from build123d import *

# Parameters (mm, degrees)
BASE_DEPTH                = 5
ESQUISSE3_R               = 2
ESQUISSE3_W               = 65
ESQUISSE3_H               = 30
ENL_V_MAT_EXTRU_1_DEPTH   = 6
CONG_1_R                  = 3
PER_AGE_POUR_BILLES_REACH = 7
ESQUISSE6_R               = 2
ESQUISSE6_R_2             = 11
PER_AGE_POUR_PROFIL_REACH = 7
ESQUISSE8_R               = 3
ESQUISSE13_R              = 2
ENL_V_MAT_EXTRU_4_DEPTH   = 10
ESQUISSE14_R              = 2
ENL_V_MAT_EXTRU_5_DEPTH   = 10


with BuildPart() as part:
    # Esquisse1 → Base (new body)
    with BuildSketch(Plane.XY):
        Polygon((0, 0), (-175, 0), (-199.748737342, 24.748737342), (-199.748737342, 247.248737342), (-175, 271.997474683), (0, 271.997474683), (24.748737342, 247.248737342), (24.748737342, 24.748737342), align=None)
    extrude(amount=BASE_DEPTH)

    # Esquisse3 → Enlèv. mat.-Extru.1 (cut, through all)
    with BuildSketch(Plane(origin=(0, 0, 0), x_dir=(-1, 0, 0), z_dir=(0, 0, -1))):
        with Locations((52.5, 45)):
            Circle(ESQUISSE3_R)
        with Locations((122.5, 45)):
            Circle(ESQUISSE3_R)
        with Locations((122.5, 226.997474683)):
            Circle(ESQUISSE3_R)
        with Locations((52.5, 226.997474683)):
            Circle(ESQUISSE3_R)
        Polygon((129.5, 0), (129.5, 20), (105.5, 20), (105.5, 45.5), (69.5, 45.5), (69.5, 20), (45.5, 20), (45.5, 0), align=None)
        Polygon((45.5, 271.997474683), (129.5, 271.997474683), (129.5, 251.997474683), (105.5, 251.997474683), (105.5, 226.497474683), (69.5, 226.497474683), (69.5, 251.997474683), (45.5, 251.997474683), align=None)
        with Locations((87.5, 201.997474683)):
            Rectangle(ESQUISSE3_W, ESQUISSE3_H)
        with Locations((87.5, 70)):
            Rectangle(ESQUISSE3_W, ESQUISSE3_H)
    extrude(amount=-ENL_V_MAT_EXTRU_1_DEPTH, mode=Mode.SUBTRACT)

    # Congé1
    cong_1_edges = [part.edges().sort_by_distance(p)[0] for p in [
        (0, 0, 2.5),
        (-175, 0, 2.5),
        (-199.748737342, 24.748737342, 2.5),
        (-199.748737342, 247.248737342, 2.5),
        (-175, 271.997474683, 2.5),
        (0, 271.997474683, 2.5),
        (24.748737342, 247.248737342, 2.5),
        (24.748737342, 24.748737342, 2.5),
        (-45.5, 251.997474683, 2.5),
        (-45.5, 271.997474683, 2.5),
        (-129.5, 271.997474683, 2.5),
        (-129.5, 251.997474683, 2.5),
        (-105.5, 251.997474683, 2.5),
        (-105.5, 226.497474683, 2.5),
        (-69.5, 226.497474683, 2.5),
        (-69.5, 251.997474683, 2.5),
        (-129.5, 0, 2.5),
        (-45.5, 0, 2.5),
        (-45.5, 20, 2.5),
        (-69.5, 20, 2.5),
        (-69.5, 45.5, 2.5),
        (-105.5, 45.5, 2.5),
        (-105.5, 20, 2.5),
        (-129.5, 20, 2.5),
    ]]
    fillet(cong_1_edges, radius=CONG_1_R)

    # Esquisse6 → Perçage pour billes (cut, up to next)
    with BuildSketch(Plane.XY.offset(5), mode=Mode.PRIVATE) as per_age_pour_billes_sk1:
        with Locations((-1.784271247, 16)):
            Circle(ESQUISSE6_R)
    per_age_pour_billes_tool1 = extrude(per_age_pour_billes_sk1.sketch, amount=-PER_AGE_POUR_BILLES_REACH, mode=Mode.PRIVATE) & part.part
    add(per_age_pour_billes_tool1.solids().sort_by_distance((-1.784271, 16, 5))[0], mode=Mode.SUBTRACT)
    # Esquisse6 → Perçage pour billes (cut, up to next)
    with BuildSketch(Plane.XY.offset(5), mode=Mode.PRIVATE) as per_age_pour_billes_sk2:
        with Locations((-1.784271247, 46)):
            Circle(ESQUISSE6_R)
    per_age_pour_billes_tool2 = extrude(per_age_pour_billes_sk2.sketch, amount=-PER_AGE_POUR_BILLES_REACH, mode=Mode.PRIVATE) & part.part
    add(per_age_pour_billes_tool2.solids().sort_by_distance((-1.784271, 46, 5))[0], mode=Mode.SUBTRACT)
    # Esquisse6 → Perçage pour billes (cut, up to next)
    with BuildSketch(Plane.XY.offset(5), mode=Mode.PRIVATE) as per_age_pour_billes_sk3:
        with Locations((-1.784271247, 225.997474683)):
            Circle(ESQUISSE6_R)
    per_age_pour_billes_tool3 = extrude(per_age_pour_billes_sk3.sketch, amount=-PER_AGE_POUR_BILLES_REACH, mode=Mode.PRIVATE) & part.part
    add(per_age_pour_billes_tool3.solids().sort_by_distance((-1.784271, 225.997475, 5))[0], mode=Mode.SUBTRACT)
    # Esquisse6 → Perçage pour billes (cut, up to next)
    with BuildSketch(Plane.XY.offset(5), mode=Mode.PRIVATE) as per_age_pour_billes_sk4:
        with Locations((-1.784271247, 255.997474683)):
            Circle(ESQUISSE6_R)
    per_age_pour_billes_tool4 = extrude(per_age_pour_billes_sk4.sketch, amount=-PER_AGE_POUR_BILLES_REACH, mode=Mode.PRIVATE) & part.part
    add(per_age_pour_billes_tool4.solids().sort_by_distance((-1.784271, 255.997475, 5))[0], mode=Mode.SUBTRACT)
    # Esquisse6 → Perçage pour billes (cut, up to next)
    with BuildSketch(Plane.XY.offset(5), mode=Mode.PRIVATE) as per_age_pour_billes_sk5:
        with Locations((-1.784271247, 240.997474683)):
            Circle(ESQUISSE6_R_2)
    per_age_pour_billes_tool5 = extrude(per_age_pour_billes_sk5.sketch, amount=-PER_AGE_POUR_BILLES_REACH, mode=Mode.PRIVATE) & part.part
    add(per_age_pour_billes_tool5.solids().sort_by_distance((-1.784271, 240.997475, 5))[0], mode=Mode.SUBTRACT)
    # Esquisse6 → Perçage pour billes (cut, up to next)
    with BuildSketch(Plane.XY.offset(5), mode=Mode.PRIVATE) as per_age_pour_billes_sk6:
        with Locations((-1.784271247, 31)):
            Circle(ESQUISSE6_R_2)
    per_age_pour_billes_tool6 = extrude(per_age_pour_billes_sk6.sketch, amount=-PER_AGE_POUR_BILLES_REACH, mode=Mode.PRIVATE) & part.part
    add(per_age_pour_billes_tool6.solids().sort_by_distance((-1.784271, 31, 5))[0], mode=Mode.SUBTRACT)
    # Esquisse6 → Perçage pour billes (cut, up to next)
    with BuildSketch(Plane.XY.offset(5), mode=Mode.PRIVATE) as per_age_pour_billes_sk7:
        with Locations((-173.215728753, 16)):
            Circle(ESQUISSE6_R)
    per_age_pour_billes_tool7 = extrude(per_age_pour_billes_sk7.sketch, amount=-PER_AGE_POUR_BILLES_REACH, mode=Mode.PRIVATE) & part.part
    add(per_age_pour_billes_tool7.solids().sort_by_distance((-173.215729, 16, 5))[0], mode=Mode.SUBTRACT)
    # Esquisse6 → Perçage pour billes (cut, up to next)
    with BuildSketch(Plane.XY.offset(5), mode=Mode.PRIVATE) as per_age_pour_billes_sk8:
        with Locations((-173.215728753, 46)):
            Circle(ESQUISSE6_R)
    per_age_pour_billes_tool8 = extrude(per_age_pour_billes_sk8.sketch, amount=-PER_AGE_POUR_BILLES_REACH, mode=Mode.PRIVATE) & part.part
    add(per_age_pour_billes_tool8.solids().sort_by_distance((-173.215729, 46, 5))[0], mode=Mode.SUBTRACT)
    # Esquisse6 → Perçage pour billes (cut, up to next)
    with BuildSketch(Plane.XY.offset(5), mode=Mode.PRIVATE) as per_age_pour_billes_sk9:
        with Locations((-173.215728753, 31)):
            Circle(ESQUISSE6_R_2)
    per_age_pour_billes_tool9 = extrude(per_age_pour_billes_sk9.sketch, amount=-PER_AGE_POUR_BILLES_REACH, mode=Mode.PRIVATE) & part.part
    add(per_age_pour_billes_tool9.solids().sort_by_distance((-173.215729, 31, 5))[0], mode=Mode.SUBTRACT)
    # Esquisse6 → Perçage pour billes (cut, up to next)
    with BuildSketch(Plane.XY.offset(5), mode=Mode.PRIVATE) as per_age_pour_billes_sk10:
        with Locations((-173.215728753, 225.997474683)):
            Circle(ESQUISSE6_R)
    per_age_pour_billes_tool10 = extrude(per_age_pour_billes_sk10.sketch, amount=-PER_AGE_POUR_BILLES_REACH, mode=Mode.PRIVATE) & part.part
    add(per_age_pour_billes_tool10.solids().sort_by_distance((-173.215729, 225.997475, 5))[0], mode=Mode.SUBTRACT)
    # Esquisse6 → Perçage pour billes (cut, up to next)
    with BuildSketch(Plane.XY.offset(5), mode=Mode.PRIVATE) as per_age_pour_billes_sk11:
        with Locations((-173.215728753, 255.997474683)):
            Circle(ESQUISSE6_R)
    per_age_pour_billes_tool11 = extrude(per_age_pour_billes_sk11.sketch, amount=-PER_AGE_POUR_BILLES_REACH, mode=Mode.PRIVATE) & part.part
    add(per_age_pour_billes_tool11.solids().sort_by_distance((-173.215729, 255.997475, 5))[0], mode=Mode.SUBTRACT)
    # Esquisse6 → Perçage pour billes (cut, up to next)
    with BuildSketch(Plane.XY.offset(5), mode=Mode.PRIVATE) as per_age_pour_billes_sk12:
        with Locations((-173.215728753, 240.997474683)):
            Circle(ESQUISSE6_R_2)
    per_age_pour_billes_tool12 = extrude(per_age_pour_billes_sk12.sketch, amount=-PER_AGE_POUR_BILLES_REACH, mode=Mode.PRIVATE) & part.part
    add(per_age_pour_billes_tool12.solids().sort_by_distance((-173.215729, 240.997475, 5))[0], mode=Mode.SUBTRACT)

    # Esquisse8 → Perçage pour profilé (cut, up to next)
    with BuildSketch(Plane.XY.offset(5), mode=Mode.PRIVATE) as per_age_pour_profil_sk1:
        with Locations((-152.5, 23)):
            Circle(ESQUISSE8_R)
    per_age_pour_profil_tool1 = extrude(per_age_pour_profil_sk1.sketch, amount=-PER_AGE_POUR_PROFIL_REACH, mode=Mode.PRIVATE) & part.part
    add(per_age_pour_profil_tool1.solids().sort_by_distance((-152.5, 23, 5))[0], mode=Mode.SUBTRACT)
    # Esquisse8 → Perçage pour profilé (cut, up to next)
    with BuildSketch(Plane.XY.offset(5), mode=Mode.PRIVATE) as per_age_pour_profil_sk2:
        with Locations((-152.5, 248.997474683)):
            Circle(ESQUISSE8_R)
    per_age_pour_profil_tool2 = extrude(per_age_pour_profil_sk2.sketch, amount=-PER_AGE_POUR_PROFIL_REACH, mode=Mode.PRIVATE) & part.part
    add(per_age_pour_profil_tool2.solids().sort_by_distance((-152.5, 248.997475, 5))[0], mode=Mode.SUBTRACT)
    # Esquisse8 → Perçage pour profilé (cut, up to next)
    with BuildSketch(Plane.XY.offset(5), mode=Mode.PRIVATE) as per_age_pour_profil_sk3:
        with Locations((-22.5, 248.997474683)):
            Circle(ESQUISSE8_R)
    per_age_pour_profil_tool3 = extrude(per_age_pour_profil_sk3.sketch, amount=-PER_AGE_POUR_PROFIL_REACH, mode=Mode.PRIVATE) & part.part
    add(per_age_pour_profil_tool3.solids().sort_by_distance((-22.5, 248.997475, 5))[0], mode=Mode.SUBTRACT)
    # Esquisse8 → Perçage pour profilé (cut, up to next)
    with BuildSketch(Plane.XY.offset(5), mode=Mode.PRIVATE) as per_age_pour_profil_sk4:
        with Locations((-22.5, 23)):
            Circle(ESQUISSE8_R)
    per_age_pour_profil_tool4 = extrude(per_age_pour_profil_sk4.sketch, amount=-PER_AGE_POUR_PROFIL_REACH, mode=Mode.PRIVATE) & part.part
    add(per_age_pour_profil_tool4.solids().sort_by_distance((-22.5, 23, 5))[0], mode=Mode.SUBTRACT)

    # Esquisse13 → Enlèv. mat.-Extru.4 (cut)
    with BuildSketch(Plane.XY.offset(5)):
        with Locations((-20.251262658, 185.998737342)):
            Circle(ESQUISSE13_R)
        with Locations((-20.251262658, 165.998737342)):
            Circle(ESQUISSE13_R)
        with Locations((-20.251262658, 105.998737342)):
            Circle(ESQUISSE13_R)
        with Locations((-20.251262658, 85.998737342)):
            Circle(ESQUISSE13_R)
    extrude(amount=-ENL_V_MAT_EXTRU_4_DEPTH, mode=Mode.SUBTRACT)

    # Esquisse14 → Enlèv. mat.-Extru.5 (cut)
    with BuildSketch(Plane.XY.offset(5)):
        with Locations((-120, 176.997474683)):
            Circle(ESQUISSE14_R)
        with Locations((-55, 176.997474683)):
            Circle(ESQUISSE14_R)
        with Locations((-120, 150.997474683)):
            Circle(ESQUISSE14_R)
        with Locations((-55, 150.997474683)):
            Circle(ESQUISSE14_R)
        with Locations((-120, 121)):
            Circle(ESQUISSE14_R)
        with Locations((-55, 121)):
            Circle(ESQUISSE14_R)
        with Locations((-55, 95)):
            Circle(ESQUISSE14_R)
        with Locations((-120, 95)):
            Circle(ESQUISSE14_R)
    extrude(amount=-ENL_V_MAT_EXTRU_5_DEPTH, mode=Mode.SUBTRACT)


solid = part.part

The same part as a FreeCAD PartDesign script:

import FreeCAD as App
import Part
import Sketcher
from FreeCAD import Vector


def edges_at(feature, points):
    """Names of the edges that pass closest to the given points."""
    edges = feature.Shape.Edges
    near = lambda p: min(range(len(edges)), key=lambda i: edges[i].distToShape(Part.Vertex(*p))[0])
    return sorted({f"Edge{near(p) + 1}" for p in points})

doc = App.newDocument("Part")
body = doc.addObject("PartDesign::Body", "Body")

sketch1 = doc.addObject("Sketcher::SketchObject", "Sketch")
body.addObject(sketch1)
sketch1.AttachmentSupport = (doc.XY_Plane, [""])
sketch1.MapMode = "FlatFace"
sketch1.addGeometry(Part.LineSegment(Vector(-175, 0, 0), Vector(0, 0, 0)), False)
sketch1.addGeometry(Part.LineSegment(Vector(0, 0, 0), Vector(25, 25, 0)), False)
sketch1.addGeometry(Part.LineSegment(Vector(25, 25, 0), Vector(25, 247, 0)), False)
sketch1.addGeometry(Part.LineSegment(Vector(25, 247, 0), Vector(0, 272, 0)), False)
sketch1.addGeometry(Part.LineSegment(Vector(0, 272, 0), Vector(-175, 272, 0)), False)
sketch1.addGeometry(Part.LineSegment(Vector(-175, 272, 0), Vector(-200, 247, 0)), False)
sketch1.addGeometry(Part.LineSegment(Vector(-200, 247, 0), Vector(-200, 25, 0)), False)
sketch1.addGeometry(Part.LineSegment(Vector(-200, 25, 0), Vector(-175, 0, 0)), False)
sketch1.addConstraint(Sketcher.Constraint("Coincident", 0, 2, 1, 1))
sketch1.addConstraint(Sketcher.Constraint("Coincident", 1, 2, 2, 1))
sketch1.addConstraint(Sketcher.Constraint("Coincident", 2, 2, 3, 1))
sketch1.addConstraint(Sketcher.Constraint("Coincident", 3, 2, 4, 1))
sketch1.addConstraint(Sketcher.Constraint("Coincident", 4, 2, 5, 1))
sketch1.addConstraint(Sketcher.Constraint("Coincident", 5, 2, 6, 1))
sketch1.addConstraint(Sketcher.Constraint("Coincident", 6, 2, 7, 1))
sketch1.addConstraint(Sketcher.Constraint("Coincident", 7, 2, 0, 1))
sketch1.addConstraint(Sketcher.Constraint("Horizontal", 0))
sketch1.addConstraint(Sketcher.Constraint("Vertical", 2))
sketch1.addConstraint(Sketcher.Constraint("Horizontal", 4))
sketch1.addConstraint(Sketcher.Constraint("Vertical", 6))
sketch1.addConstraint(Sketcher.Constraint("Coincident", 0, 2, -1, 1))
sketch1.addConstraint(Sketcher.Constraint("PointOnObject", 3, 2, -2))
sketch1.addConstraint(Sketcher.Constraint("Perpendicular", 1, 3))
sketch1.addConstraint(Sketcher.Constraint("Perpendicular", 3, 5))
sketch1.addConstraint(Sketcher.Constraint("Perpendicular", 5, 7))
sketch1.addConstraint(Sketcher.Constraint("Horizontal", 2, 2, 5, 2))
sketch1.addConstraint(Sketcher.Constraint("Horizontal", 1, 2, 6, 2))
sketch1.addConstraint(Sketcher.Constraint("Vertical", 4, 2, 7, 2))
sketch1.addConstraint(Sketcher.Constraint("DistanceX", 0, 1, 0, 2, 175.0))
sketch1.addConstraint(Sketcher.Constraint("Distance", 1, 35.0))
sketch1.addConstraint(Sketcher.Constraint("DistanceY", 2, 1, 2, 2, 222.5))
pad1 = doc.addObject("PartDesign::Pad", "Pad")
body.addObject(pad1)
pad1.Profile = sketch1
pad1.Length = 5

sketch2 = doc.addObject("Sketcher::SketchObject", "Sketch001")
body.addObject(sketch2)
sketch2.AttachmentSupport = (doc.XY_Plane, [""])
sketch2.MapMode = "FlatFace"
sketch2.addGeometry(Part.Circle(Vector(-52.5, 45, 0), Vector(0, 0, 1), 2), False)
sketch2.addGeometry(Part.Circle(Vector(-122.5, 45, 0), Vector(0, 0, 1), 2), False)
sketch2.addGeometry(Part.Circle(Vector(-122.5, 227, 0), Vector(0, 0, 1), 2), False)
sketch2.addGeometry(Part.Circle(Vector(-52.5, 227, 0), Vector(0, 0, 1), 2), False)
sketch2.addGeometry(Part.LineSegment(Vector(-129.5, 0, 0), Vector(-129.5, 20, 0)), False)
sketch2.addGeometry(Part.LineSegment(Vector(-129.5, 20, 0), Vector(-105.5, 20, 0)), False)
sketch2.addGeometry(Part.LineSegment(Vector(-105.5, 20, 0), Vector(-105.5, 45.5, 0)), False)
sketch2.addGeometry(Part.LineSegment(Vector(-105.5, 45.5, 0), Vector(-69.5, 45.5, 0)), False)
sketch2.addGeometry(Part.LineSegment(Vector(-69.5, 45.5, 0), Vector(-69.5, 20, 0)), False)
sketch2.addGeometry(Part.LineSegment(Vector(-69.5, 20, 0), Vector(-45.5, 20, 0)), False)
sketch2.addGeometry(Part.LineSegment(Vector(-45.5, 20, 0), Vector(-45.5, 0, 0)), False)
sketch2.addGeometry(Part.LineSegment(Vector(-45.5, 0, 0), Vector(-129.5, 0, 0)), False)
sketch2.addGeometry(Part.LineSegment(Vector(-129.5, 272, 0), Vector(-45.5, 272, 0)), False)
sketch2.addGeometry(Part.LineSegment(Vector(-45.5, 272, 0), Vector(-45.5, 252, 0)), False)
sketch2.addGeometry(Part.LineSegment(Vector(-45.5, 252, 0), Vector(-69.5, 252, 0)), False)
sketch2.addGeometry(Part.LineSegment(Vector(-69.5, 252, 0), Vector(-69.5, 226.5, 0)), False)
sketch2.addGeometry(Part.LineSegment(Vector(-69.5, 226.5, 0), Vector(-105.5, 226.5, 0)), False)
sketch2.addGeometry(Part.LineSegment(Vector(-105.5, 226.5, 0), Vector(-105.5, 252, 0)), False)
sketch2.addGeometry(Part.LineSegment(Vector(-105.5, 252, 0), Vector(-129.5, 252, 0)), False)
sketch2.addGeometry(Part.LineSegment(Vector(-129.5, 252, 0), Vector(-129.5, 272, 0)), False)
sketch2.addGeometry(Part.LineSegment(Vector(-55, 217, 0), Vector(-55, 187, 0)), False)
sketch2.addGeometry(Part.LineSegment(Vector(-55, 187, 0), Vector(-120, 187, 0)), False)
sketch2.addGeometry(Part.LineSegment(Vector(-120, 187, 0), Vector(-120, 217, 0)), False)
sketch2.addGeometry(Part.LineSegment(Vector(-120, 217, 0), Vector(-55, 217, 0)), False)
sketch2.addGeometry(Part.LineSegment(Vector(-55, 85, 0), Vector(-55, 55, 0)), False)
sketch2.addGeometry(Part.LineSegment(Vector(-55, 55, 0), Vector(-120, 55, 0)), False)
sketch2.addGeometry(Part.LineSegment(Vector(-120, 55, 0), Vector(-120, 85, 0)), False)
sketch2.addGeometry(Part.LineSegment(Vector(-120, 85, 0), Vector(-55, 85, 0)), False)
sketch2.addConstraint(Sketcher.Constraint("Coincident", 4, 2, 5, 1))
sketch2.addConstraint(Sketcher.Constraint("Coincident", 5, 2, 6, 1))
sketch2.addConstraint(Sketcher.Constraint("Coincident", 6, 2, 7, 1))
sketch2.addConstraint(Sketcher.Constraint("Coincident", 7, 2, 8, 1))
sketch2.addConstraint(Sketcher.Constraint("Coincident", 8, 2, 9, 1))
sketch2.addConstraint(Sketcher.Constraint("Coincident", 9, 2, 10, 1))
sketch2.addConstraint(Sketcher.Constraint("Coincident", 10, 2, 11, 1))
sketch2.addConstraint(Sketcher.Constraint("Coincident", 11, 2, 4, 1))
sketch2.addConstraint(Sketcher.Constraint("Coincident", 12, 2, 13, 1))
sketch2.addConstraint(Sketcher.Constraint("Coincident", 13, 2, 14, 1))
sketch2.addConstraint(Sketcher.Constraint("Coincident", 14, 2, 15, 1))
sketch2.addConstraint(Sketcher.Constraint("Coincident", 15, 2, 16, 1))
sketch2.addConstraint(Sketcher.Constraint("Coincident", 16, 2, 17, 1))
sketch2.addConstraint(Sketcher.Constraint("Coincident", 17, 2, 18, 1))
sketch2.addConstraint(Sketcher.Constraint("Coincident", 18, 2, 19, 1))
sketch2.addConstraint(Sketcher.Constraint("Coincident", 19, 2, 12, 1))
sketch2.addConstraint(Sketcher.Constraint("Coincident", 20, 2, 21, 1))
sketch2.addConstraint(Sketcher.Constraint("Coincident", 21, 2, 22, 1))
sketch2.addConstraint(Sketcher.Constraint("Coincident", 22, 2, 23, 1))
sketch2.addConstraint(Sketcher.Constraint("Coincident", 23, 2, 20, 1))
sketch2.addConstraint(Sketcher.Constraint("Coincident", 24, 2, 25, 1))
sketch2.addConstraint(Sketcher.Constraint("Coincident", 25, 2, 26, 1))
sketch2.addConstraint(Sketcher.Constraint("Coincident", 26, 2, 27, 1))
sketch2.addConstraint(Sketcher.Constraint("Coincident", 27, 2, 24, 1))
sketch2.addConstraint(Sketcher.Constraint("Vertical", 4))
sketch2.addConstraint(Sketcher.Constraint("Horizontal", 5))
sketch2.addConstraint(Sketcher.Constraint("Vertical", 6))
sketch2.addConstraint(Sketcher.Constraint("Horizontal", 7))
sketch2.addConstraint(Sketcher.Constraint("Vertical", 8))
sketch2.addConstraint(Sketcher.Constraint("Horizontal", 9))
sketch2.addConstraint(Sketcher.Constraint("Vertical", 10))
sketch2.addConstraint(Sketcher.Constraint("Horizontal", 11))
sketch2.addConstraint(Sketcher.Constraint("Horizontal", 12))
sketch2.addConstraint(Sketcher.Constraint("Vertical", 13))
sketch2.addConstraint(Sketcher.Constraint("Horizontal", 14))
sketch2.addConstraint(Sketcher.Constraint("Vertical", 15))
sketch2.addConstraint(Sketcher.Constraint("Horizontal", 16))
sketch2.addConstraint(Sketcher.Constraint("Vertical", 17))
sketch2.addConstraint(Sketcher.Constraint("Horizontal", 18))
sketch2.addConstraint(Sketcher.Constraint("Vertical", 19))
sketch2.addConstraint(Sketcher.Constraint("Vertical", 20))
sketch2.addConstraint(Sketcher.Constraint("Horizontal", 21))
sketch2.addConstraint(Sketcher.Constraint("Vertical", 22))
sketch2.addConstraint(Sketcher.Constraint("Horizontal", 23))
sketch2.addConstraint(Sketcher.Constraint("Vertical", 24))
sketch2.addConstraint(Sketcher.Constraint("Horizontal", 25))
sketch2.addConstraint(Sketcher.Constraint("Vertical", 26))
sketch2.addConstraint(Sketcher.Constraint("Horizontal", 27))
sketch2.addConstraint(Sketcher.Constraint("Equal", 0, 1))
sketch2.addConstraint(Sketcher.Constraint("Equal", 1, 2))
sketch2.addConstraint(Sketcher.Constraint("Equal", 2, 3))
sketch2.addConstraint(Sketcher.Constraint("PointOnObject", 10, 2, -1))
sketch2.addConstraint(Sketcher.Constraint("Horizontal", 0, 3, 1, 3))
sketch2.addConstraint(Sketcher.Constraint("Horizontal", 2, 3, 3, 3))
sketch2.addConstraint(Sketcher.Constraint("Horizontal", 5, 2, 8, 2))
sketch2.addConstraint(Sketcher.Constraint("Horizontal", 14, 2, 17, 2))
sketch2.addConstraint(Sketcher.Constraint("Vertical", 1, 3, 2, 3))
sketch2.addConstraint(Sketcher.Constraint("Vertical", 0, 3, 3, 3))
sketch2.addConstraint(Sketcher.Constraint("Vertical", 10, 2, 12, 2))
sketch2.addConstraint(Sketcher.Constraint("Vertical", 8, 2, 14, 2))
sketch2.addConstraint(Sketcher.Constraint("Vertical", 6, 2, 16, 2))
sketch2.addConstraint(Sketcher.Constraint("Vertical", 11, 2, 18, 2))
sketch2.addConstraint(Sketcher.Constraint("Vertical", 23, 2, 24, 2))
sketch2.addConstraint(Sketcher.Constraint("Vertical", 22, 2, 25, 2))
sketch2.addConstraint(Sketcher.Constraint("Equal", 5, 9))
sketch2.addConstraint(Sketcher.Constraint("Equal", 10, 13))
sketch2.addConstraint(Sketcher.Constraint("Equal", 8, 15))
sketch2.addConstraint(Sketcher.Constraint("Equal", 22, 24))
sketch2.addConstraint(Sketcher.Constraint("Diameter", 0, 4.0))
sketch2.addConstraint(Sketcher.Constraint("DistanceX", 5, 1, 5, 2, 24.0))
sketch2.addConstraint(Sketcher.Constraint("DistanceX", 7, 1, 7, 2, 36.0))
sketch2.addConstraint(Sketcher.Constraint("DistanceX", 21, 2, 21, 1, 65.0))
sketch2.addConstraint(Sketcher.Constraint("DistanceY", 4, 1, 4, 2, 20.0))
sketch2.addConstraint(Sketcher.Constraint("DistanceY", 20, 2, 20, 1, 30.0))
sketch2.addConstraint(Sketcher.Constraint("DistanceY", 6, 1, 6, 2, 25.5))
sketch2.addConstraint(Sketcher.Constraint("DistanceY", -1, 1, 0, 3, 45.0))
sketch2.addConstraint(Sketcher.Constraint("DistanceX", 20, 2, -1, 1, 55.0))
sketch2.addConstraint(Sketcher.Constraint("DistanceY", -1, 1, 24, 2, 55.0))
sketch2.addConstraint(Sketcher.Constraint("DistanceX", 1, 3, 0, 3, 70.0))
sketch2.addConstraint(Sketcher.Constraint("DistanceX", 4, 2, 1, 3, 7.0))
sketch2.addConstraint(Sketcher.Constraint("DistanceY", 3, 3, 12, 2, 45.0))
sketch2.addConstraint(Sketcher.Constraint("DistanceY", 20, 2, 3, 3, 40.0))
sketch2.addConstraint(Sketcher.Constraint("DistanceX", 0, 3, -1, 1, 52.5))
sketch2.addConstraint(Sketcher.Constraint("DistanceY", -1, 1, 2, 3, 226.997475))
pocket1 = doc.addObject("PartDesign::Pocket", "Pocket")
body.addObject(pocket1)
pocket1.Profile = sketch2
pocket1.Type = "ThroughAll"
pocket1.Reversed = True
doc.recompute()

fillet = doc.addObject("PartDesign::Fillet", "Fillet")
body.addObject(fillet)
fillet.Base = (pocket1, edges_at(pocket1, [
    (0, 0, 2.5),
    (-175, 0, 2.5),
    (-199.749, 24.749, 2.5),
    (-199.749, 247.249, 2.5),
    (-175, 271.997, 2.5),
    (0, 271.997, 2.5),
    (24.749, 247.249, 2.5),
    (24.749, 24.749, 2.5),
    (-45.5, 251.997, 2.5),
    (-45.5, 271.997, 2.5),
    (-129.5, 271.997, 2.5),
    (-129.5, 251.997, 2.5),
    (-105.5, 251.997, 2.5),
    (-105.5, 226.497, 2.5),
    (-69.5, 226.497, 2.5),
    (-69.5, 251.997, 2.5),
    (-129.5, 0, 2.5),
    (-45.5, 0, 2.5),
    (-45.5, 20, 2.5),
    (-69.5, 20, 2.5),
    (-69.5, 45.5, 2.5),
    (-105.5, 45.5, 2.5),
    (-105.5, 20, 2.5),
    (-129.5, 20, 2.5),
]))
fillet.Radius = 3

sketch3 = doc.addObject("Sketcher::SketchObject", "Sketch002")
body.addObject(sketch3)
sketch3.AttachmentSupport = (doc.XY_Plane, [""])
sketch3.MapMode = "FlatFace"
sketch3.AttachmentOffset = App.Placement(Vector(0, 0, 5), App.Rotation())
sketch3.addGeometry(Part.Circle(Vector(-1.8, 16, 0), Vector(0, 0, 1), 2), False)
sketch3.addConstraint(Sketcher.Constraint("Diameter", 0, 4.0))
sketch3.addConstraint(Sketcher.Constraint("DistanceY", -1, 1, 0, 3, 16.0))
sketch3.addConstraint(Sketcher.Constraint("DistanceX", 0, 3, -1, 1, 1.784271))
pocket2 = doc.addObject("PartDesign::Pocket", "Pocket001")
body.addObject(pocket2)
pocket2.Profile = sketch3
pocket2.Type = "UpToFirst"

sketch4 = doc.addObject("Sketcher::SketchObject", "Sketch003")
body.addObject(sketch4)
sketch4.AttachmentSupport = (doc.XY_Plane, [""])
sketch4.MapMode = "FlatFace"
sketch4.AttachmentOffset = App.Placement(Vector(0, 0, 5), App.Rotation())
sketch4.addGeometry(Part.Circle(Vector(-1.8, 46, 0), Vector(0, 0, 1), 2), False)
sketch4.addConstraint(Sketcher.Constraint("Diameter", 0, 4.0))
sketch4.addConstraint(Sketcher.Constraint("DistanceY", -1, 1, 0, 3, 46.0))
sketch4.addConstraint(Sketcher.Constraint("DistanceX", 0, 3, -1, 1, 1.784271))
pocket3 = doc.addObject("PartDesign::Pocket", "Pocket002")
body.addObject(pocket3)
pocket3.Profile = sketch4
pocket3.Type = "UpToFirst"

sketch5 = doc.addObject("Sketcher::SketchObject", "Sketch004")
body.addObject(sketch5)
sketch5.AttachmentSupport = (doc.XY_Plane, [""])
sketch5.MapMode = "FlatFace"
sketch5.AttachmentOffset = App.Placement(Vector(0, 0, 5), App.Rotation())
sketch5.addGeometry(Part.Circle(Vector(-1.8, 226, 0), Vector(0, 0, 1), 2), False)
sketch5.addConstraint(Sketcher.Constraint("Diameter", 0, 4.0))
sketch5.addConstraint(Sketcher.Constraint("DistanceX", 0, 3, -1, 1, 1.784271))
sketch5.addConstraint(Sketcher.Constraint("DistanceY", -1, 1, 0, 3, 225.997475))
pocket4 = doc.addObject("PartDesign::Pocket", "Pocket003")
body.addObject(pocket4)
pocket4.Profile = sketch5
pocket4.Type = "UpToFirst"

sketch6 = doc.addObject("Sketcher::SketchObject", "Sketch005")
body.addObject(sketch6)
sketch6.AttachmentSupport = (doc.XY_Plane, [""])
sketch6.MapMode = "FlatFace"
sketch6.AttachmentOffset = App.Placement(Vector(0, 0, 5), App.Rotation())
sketch6.addGeometry(Part.Circle(Vector(-1.8, 256, 0), Vector(0, 0, 1), 2), False)
sketch6.addConstraint(Sketcher.Constraint("Diameter", 0, 4.0))
sketch6.addConstraint(Sketcher.Constraint("DistanceX", 0, 3, -1, 1, 1.784271))
sketch6.addConstraint(Sketcher.Constraint("DistanceY", -1, 1, 0, 3, 255.997475))
pocket5 = doc.addObject("PartDesign::Pocket", "Pocket004")
body.addObject(pocket5)
pocket5.Profile = sketch6
pocket5.Type = "UpToFirst"

sketch7 = doc.addObject("Sketcher::SketchObject", "Sketch006")
body.addObject(sketch7)
sketch7.AttachmentSupport = (doc.XY_Plane, [""])
sketch7.MapMode = "FlatFace"
sketch7.AttachmentOffset = App.Placement(Vector(0, 0, 5), App.Rotation())
sketch7.addGeometry(Part.Circle(Vector(-2, 241, 0), Vector(0, 0, 1), 11), False)
sketch7.addConstraint(Sketcher.Constraint("Diameter", 0, 22.0))
sketch7.addConstraint(Sketcher.Constraint("DistanceX", 0, 3, -1, 1, 1.784271))
sketch7.addConstraint(Sketcher.Constraint("DistanceY", -1, 1, 0, 3, 240.997475))
pocket6 = doc.addObject("PartDesign::Pocket", "Pocket005")
body.addObject(pocket6)
pocket6.Profile = sketch7
pocket6.Type = "UpToFirst"

sketch8 = doc.addObject("Sketcher::SketchObject", "Sketch007")
body.addObject(sketch8)
sketch8.AttachmentSupport = (doc.XY_Plane, [""])
sketch8.MapMode = "FlatFace"
sketch8.AttachmentOffset = App.Placement(Vector(0, 0, 5), App.Rotation())
sketch8.addGeometry(Part.Circle(Vector(-2, 31, 0), Vector(0, 0, 1), 11), False)
sketch8.addConstraint(Sketcher.Constraint("Diameter", 0, 22.0))
sketch8.addConstraint(Sketcher.Constraint("DistanceY", -1, 1, 0, 3, 31.0))
sketch8.addConstraint(Sketcher.Constraint("DistanceX", 0, 3, -1, 1, 1.784271))
pocket7 = doc.addObject("PartDesign::Pocket", "Pocket006")
body.addObject(pocket7)
pocket7.Profile = sketch8
pocket7.Type = "UpToFirst"

sketch9 = doc.addObject("Sketcher::SketchObject", "Sketch008")
body.addObject(sketch9)
sketch9.AttachmentSupport = (doc.XY_Plane, [""])
sketch9.MapMode = "FlatFace"
sketch9.AttachmentOffset = App.Placement(Vector(0, 0, 5), App.Rotation())
sketch9.addGeometry(Part.Circle(Vector(-173.2, 16, 0), Vector(0, 0, 1), 2), False)
sketch9.addConstraint(Sketcher.Constraint("Diameter", 0, 4.0))
sketch9.addConstraint(Sketcher.Constraint("DistanceY", -1, 1, 0, 3, 16.0))
sketch9.addConstraint(Sketcher.Constraint("DistanceX", 0, 3, -1, 1, 173.215729))
pocket8 = doc.addObject("PartDesign::Pocket", "Pocket007")
body.addObject(pocket8)
pocket8.Profile = sketch9
pocket8.Type = "UpToFirst"

sketch10 = doc.addObject("Sketcher::SketchObject", "Sketch009")
body.addObject(sketch10)
sketch10.AttachmentSupport = (doc.XY_Plane, [""])
sketch10.MapMode = "FlatFace"
sketch10.AttachmentOffset = App.Placement(Vector(0, 0, 5), App.Rotation())
sketch10.addGeometry(Part.Circle(Vector(-173.2, 46, 0), Vector(0, 0, 1), 2), False)
sketch10.addConstraint(Sketcher.Constraint("Diameter", 0, 4.0))
sketch10.addConstraint(Sketcher.Constraint("DistanceY", -1, 1, 0, 3, 46.0))
sketch10.addConstraint(Sketcher.Constraint("DistanceX", 0, 3, -1, 1, 173.215729))
pocket9 = doc.addObject("PartDesign::Pocket", "Pocket008")
body.addObject(pocket9)
pocket9.Profile = sketch10
pocket9.Type = "UpToFirst"

sketch11 = doc.addObject("Sketcher::SketchObject", "Sketch010")
body.addObject(sketch11)
sketch11.AttachmentSupport = (doc.XY_Plane, [""])
sketch11.MapMode = "FlatFace"
sketch11.AttachmentOffset = App.Placement(Vector(0, 0, 5), App.Rotation())
sketch11.addGeometry(Part.Circle(Vector(-173, 31, 0), Vector(0, 0, 1), 11), False)
sketch11.addConstraint(Sketcher.Constraint("Diameter", 0, 22.0))
sketch11.addConstraint(Sketcher.Constraint("DistanceY", -1, 1, 0, 3, 31.0))
sketch11.addConstraint(Sketcher.Constraint("DistanceX", 0, 3, -1, 1, 173.215729))
pocket10 = doc.addObject("PartDesign::Pocket", "Pocket009")
body.addObject(pocket10)
pocket10.Profile = sketch11
pocket10.Type = "UpToFirst"

sketch12 = doc.addObject("Sketcher::SketchObject", "Sketch011")
body.addObject(sketch12)
sketch12.AttachmentSupport = (doc.XY_Plane, [""])
sketch12.MapMode = "FlatFace"
sketch12.AttachmentOffset = App.Placement(Vector(0, 0, 5), App.Rotation())
sketch12.addGeometry(Part.Circle(Vector(-173.2, 226, 0), Vector(0, 0, 1), 2), False)
sketch12.addConstraint(Sketcher.Constraint("Diameter", 0, 4.0))
sketch12.addConstraint(Sketcher.Constraint("DistanceX", 0, 3, -1, 1, 173.215729))
sketch12.addConstraint(Sketcher.Constraint("DistanceY", -1, 1, 0, 3, 225.997475))
pocket11 = doc.addObject("PartDesign::Pocket", "Pocket010")
body.addObject(pocket11)
pocket11.Profile = sketch12
pocket11.Type = "UpToFirst"

sketch13 = doc.addObject("Sketcher::SketchObject", "Sketch012")
body.addObject(sketch13)
sketch13.AttachmentSupport = (doc.XY_Plane, [""])
sketch13.MapMode = "FlatFace"
sketch13.AttachmentOffset = App.Placement(Vector(0, 0, 5), App.Rotation())
sketch13.addGeometry(Part.Circle(Vector(-173.2, 256, 0), Vector(0, 0, 1), 2), False)
sketch13.addConstraint(Sketcher.Constraint("Diameter", 0, 4.0))
sketch13.addConstraint(Sketcher.Constraint("DistanceX", 0, 3, -1, 1, 173.215729))
sketch13.addConstraint(Sketcher.Constraint("DistanceY", -1, 1, 0, 3, 255.997475))
pocket12 = doc.addObject("PartDesign::Pocket", "Pocket011")
body.addObject(pocket12)
pocket12.Profile = sketch13
pocket12.Type = "UpToFirst"

sketch14 = doc.addObject("Sketcher::SketchObject", "Sketch013")
body.addObject(sketch14)
sketch14.AttachmentSupport = (doc.XY_Plane, [""])
sketch14.MapMode = "FlatFace"
sketch14.AttachmentOffset = App.Placement(Vector(0, 0, 5), App.Rotation())
sketch14.addGeometry(Part.Circle(Vector(-173, 241, 0), Vector(0, 0, 1), 11), False)
sketch14.addConstraint(Sketcher.Constraint("Diameter", 0, 22.0))
sketch14.addConstraint(Sketcher.Constraint("DistanceX", 0, 3, -1, 1, 173.215729))
sketch14.addConstraint(Sketcher.Constraint("DistanceY", -1, 1, 0, 3, 240.997475))
pocket13 = doc.addObject("PartDesign::Pocket", "Pocket012")
body.addObject(pocket13)
pocket13.Profile = sketch14
pocket13.Type = "UpToFirst"

sketch15 = doc.addObject("Sketcher::SketchObject", "Sketch014")
body.addObject(sketch15)
sketch15.AttachmentSupport = (doc.XY_Plane, [""])
sketch15.MapMode = "FlatFace"
sketch15.AttachmentOffset = App.Placement(Vector(0, 0, 5), App.Rotation())
sketch15.addGeometry(Part.Circle(Vector(-152.5, 23, 0), Vector(0, 0, 1), 3), False)
sketch15.addConstraint(Sketcher.Constraint("Diameter", 0, 6.0))
sketch15.addConstraint(Sketcher.Constraint("DistanceY", -1, 1, 0, 3, 23.0))
sketch15.addConstraint(Sketcher.Constraint("DistanceX", 0, 3, -1, 1, 152.5))
pocket14 = doc.addObject("PartDesign::Pocket", "Pocket013")
body.addObject(pocket14)
pocket14.Profile = sketch15
pocket14.Type = "UpToFirst"

sketch16 = doc.addObject("Sketcher::SketchObject", "Sketch015")
body.addObject(sketch16)
sketch16.AttachmentSupport = (doc.XY_Plane, [""])
sketch16.MapMode = "FlatFace"
sketch16.AttachmentOffset = App.Placement(Vector(0, 0, 5), App.Rotation())
sketch16.addGeometry(Part.Circle(Vector(-152.5, 249, 0), Vector(0, 0, 1), 3), False)
sketch16.addConstraint(Sketcher.Constraint("Diameter", 0, 6.0))
sketch16.addConstraint(Sketcher.Constraint("DistanceX", 0, 3, -1, 1, 152.5))
sketch16.addConstraint(Sketcher.Constraint("DistanceY", -1, 1, 0, 3, 248.997475))
pocket15 = doc.addObject("PartDesign::Pocket", "Pocket014")
body.addObject(pocket15)
pocket15.Profile = sketch16
pocket15.Type = "UpToFirst"

sketch17 = doc.addObject("Sketcher::SketchObject", "Sketch016")
body.addObject(sketch17)
sketch17.AttachmentSupport = (doc.XY_Plane, [""])
sketch17.MapMode = "FlatFace"
sketch17.AttachmentOffset = App.Placement(Vector(0, 0, 5), App.Rotation())
sketch17.addGeometry(Part.Circle(Vector(-22.5, 249, 0), Vector(0, 0, 1), 3), False)
sketch17.addConstraint(Sketcher.Constraint("Diameter", 0, 6.0))
sketch17.addConstraint(Sketcher.Constraint("DistanceX", 0, 3, -1, 1, 22.5))
sketch17.addConstraint(Sketcher.Constraint("DistanceY", -1, 1, 0, 3, 248.997475))
pocket16 = doc.addObject("PartDesign::Pocket", "Pocket015")
body.addObject(pocket16)
pocket16.Profile = sketch17
pocket16.Type = "UpToFirst"

sketch18 = doc.addObject("Sketcher::SketchObject", "Sketch017")
body.addObject(sketch18)
sketch18.AttachmentSupport = (doc.XY_Plane, [""])
sketch18.MapMode = "FlatFace"
sketch18.AttachmentOffset = App.Placement(Vector(0, 0, 5), App.Rotation())
sketch18.addGeometry(Part.Circle(Vector(-22.5, 23, 0), Vector(0, 0, 1), 3), False)
sketch18.addConstraint(Sketcher.Constraint("Diameter", 0, 6.0))
sketch18.addConstraint(Sketcher.Constraint("DistanceY", -1, 1, 0, 3, 23.0))
sketch18.addConstraint(Sketcher.Constraint("DistanceX", 0, 3, -1, 1, 22.5))
pocket17 = doc.addObject("PartDesign::Pocket", "Pocket016")
body.addObject(pocket17)
pocket17.Profile = sketch18
pocket17.Type = "UpToFirst"

sketch19 = doc.addObject("Sketcher::SketchObject", "Sketch018")
body.addObject(sketch19)
sketch19.AttachmentSupport = (doc.XY_Plane, [""])
sketch19.MapMode = "FlatFace"
sketch19.AttachmentOffset = App.Placement(Vector(0, 0, 5), App.Rotation())
sketch19.addGeometry(Part.Circle(Vector(-20.3, 186, 0), Vector(0, 0, 1), 2), False)
sketch19.addGeometry(Part.Circle(Vector(-20.3, 166, 0), Vector(0, 0, 1), 2), False)
sketch19.addGeometry(Part.Circle(Vector(-20.3, 106, 0), Vector(0, 0, 1), 2), False)
sketch19.addGeometry(Part.Circle(Vector(-20.3, 86, 0), Vector(0, 0, 1), 2), False)
sketch19.addConstraint(Sketcher.Constraint("Equal", 0, 1))
sketch19.addConstraint(Sketcher.Constraint("Equal", 1, 2))
sketch19.addConstraint(Sketcher.Constraint("Equal", 2, 3))
sketch19.addConstraint(Sketcher.Constraint("Vertical", 0, 3, 1, 3))
sketch19.addConstraint(Sketcher.Constraint("Vertical", 1, 3, 2, 3))
sketch19.addConstraint(Sketcher.Constraint("Vertical", 2, 3, 3, 3))
sketch19.addConstraint(Sketcher.Constraint("Diameter", 0, 4.0))
sketch19.addConstraint(Sketcher.Constraint("DistanceY", 1, 3, 0, 3, 20.0))
sketch19.addConstraint(Sketcher.Constraint("DistanceY", 2, 3, 1, 3, 60.0))
sketch19.addConstraint(Sketcher.Constraint("DistanceY", 3, 3, 2, 3, 20.0))
sketch19.addConstraint(Sketcher.Constraint("DistanceX", 0, 3, -1, 1, 20.251263))
sketch19.addConstraint(Sketcher.Constraint("DistanceY", -1, 1, 0, 3, 185.998737))
pocket18 = doc.addObject("PartDesign::Pocket", "Pocket017")
body.addObject(pocket18)
pocket18.Profile = sketch19
pocket18.Length = 10

sketch20 = doc.addObject("Sketcher::SketchObject", "Sketch019")
body.addObject(sketch20)
sketch20.AttachmentSupport = (doc.XY_Plane, [""])
sketch20.MapMode = "FlatFace"
sketch20.AttachmentOffset = App.Placement(Vector(0, 0, 5), App.Rotation())
sketch20.addGeometry(Part.Circle(Vector(-120, 177, 0), Vector(0, 0, 1), 2), False)
sketch20.addGeometry(Part.Circle(Vector(-55, 177, 0), Vector(0, 0, 1), 2), False)
sketch20.addGeometry(Part.Circle(Vector(-120, 151, 0), Vector(0, 0, 1), 2), False)
sketch20.addGeometry(Part.Circle(Vector(-55, 151, 0), Vector(0, 0, 1), 2), False)
sketch20.addGeometry(Part.Circle(Vector(-120, 121, 0), Vector(0, 0, 1), 2), False)
sketch20.addGeometry(Part.Circle(Vector(-55, 121, 0), Vector(0, 0, 1), 2), False)
sketch20.addGeometry(Part.Circle(Vector(-55, 95, 0), Vector(0, 0, 1), 2), False)
sketch20.addGeometry(Part.Circle(Vector(-120, 95, 0), Vector(0, 0, 1), 2), False)
sketch20.addConstraint(Sketcher.Constraint("Equal", 0, 1))
sketch20.addConstraint(Sketcher.Constraint("Equal", 1, 2))
sketch20.addConstraint(Sketcher.Constraint("Equal", 2, 3))
sketch20.addConstraint(Sketcher.Constraint("Equal", 3, 4))
sketch20.addConstraint(Sketcher.Constraint("Equal", 4, 5))
sketch20.addConstraint(Sketcher.Constraint("Equal", 5, 6))
sketch20.addConstraint(Sketcher.Constraint("Equal", 6, 7))
sketch20.addConstraint(Sketcher.Constraint("Horizontal", 0, 3, 1, 3))
sketch20.addConstraint(Sketcher.Constraint("Horizontal", 2, 3, 3, 3))
sketch20.addConstraint(Sketcher.Constraint("Horizontal", 4, 3, 5, 3))
sketch20.addConstraint(Sketcher.Constraint("Horizontal", 6, 3, 7, 3))
sketch20.addConstraint(Sketcher.Constraint("Vertical", 0, 3, 2, 3))
sketch20.addConstraint(Sketcher.Constraint("Vertical", 1, 3, 3, 3))
sketch20.addConstraint(Sketcher.Constraint("Vertical", 2, 3, 4, 3))
sketch20.addConstraint(Sketcher.Constraint("Vertical", 3, 3, 5, 3))
sketch20.addConstraint(Sketcher.Constraint("Vertical", 5, 3, 6, 3))
sketch20.addConstraint(Sketcher.Constraint("Vertical", 4, 3, 7, 3))
sketch20.addConstraint(Sketcher.Constraint("Diameter", 0, 4.0))
sketch20.addConstraint(Sketcher.Constraint("DistanceX", 0, 3, -1, 1, 120.0))
sketch20.addConstraint(Sketcher.Constraint("DistanceX", 1, 3, -1, 1, 55.0))
sketch20.addConstraint(Sketcher.Constraint("DistanceY", -1, 1, 4, 3, 121.0))
sketch20.addConstraint(Sketcher.Constraint("DistanceY", -1, 1, 6, 3, 95.0))
sketch20.addConstraint(Sketcher.Constraint("DistanceY", 2, 3, 0, 3, 26.0))
sketch20.addConstraint(Sketcher.Constraint("DistanceY", -1, 1, 0, 3, 176.997475))
pocket19 = doc.addObject("PartDesign::Pocket", "Pocket018")
body.addObject(pocket19)
pocket19.Profile = sketch20
pocket19.Length = 10

doc.recompute()
